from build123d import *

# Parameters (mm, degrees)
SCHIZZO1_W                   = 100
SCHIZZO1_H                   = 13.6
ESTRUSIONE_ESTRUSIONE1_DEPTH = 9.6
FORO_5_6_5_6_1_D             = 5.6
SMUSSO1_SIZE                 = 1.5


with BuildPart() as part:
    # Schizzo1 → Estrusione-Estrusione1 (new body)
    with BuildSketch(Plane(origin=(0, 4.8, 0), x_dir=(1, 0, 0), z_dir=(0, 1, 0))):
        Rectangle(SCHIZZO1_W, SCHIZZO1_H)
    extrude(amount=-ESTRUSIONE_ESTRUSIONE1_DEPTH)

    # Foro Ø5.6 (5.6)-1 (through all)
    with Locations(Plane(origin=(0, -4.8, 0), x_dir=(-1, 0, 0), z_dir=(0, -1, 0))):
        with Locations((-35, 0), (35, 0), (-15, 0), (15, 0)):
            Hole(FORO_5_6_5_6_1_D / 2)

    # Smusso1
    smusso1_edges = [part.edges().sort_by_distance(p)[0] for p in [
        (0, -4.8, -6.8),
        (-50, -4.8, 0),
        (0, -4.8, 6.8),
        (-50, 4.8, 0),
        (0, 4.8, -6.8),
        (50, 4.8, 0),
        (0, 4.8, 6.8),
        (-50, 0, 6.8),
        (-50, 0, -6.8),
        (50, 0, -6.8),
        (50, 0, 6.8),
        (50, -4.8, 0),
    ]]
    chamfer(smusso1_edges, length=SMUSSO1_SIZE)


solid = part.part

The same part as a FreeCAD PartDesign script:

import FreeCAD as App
import Part
import Sketcher

V = App.Vector
Q = App.Units.Quantity


def edges_at(feature, points):
    """Names of the edges that pass closest to the given points."""
    edges = feature.Shape.Edges
    near = lambda p: min(range(len(edges)), key=lambda i: edges[i].distToShape(Part.Vertex(*p))[0])
    return sorted({f"Edge{near(p) + 1}" for p in points})


def add_polygon(sketch, points):
    """Adds a closed chain of lines whose ends are joined by coincident constraints."""
    first, n = sketch.GeometryCount, len(points)
    for a, b in zip(points, points[1:] + points[:1]):
        sketch.addGeometry(Part.LineSegment(App.Vector(*a, 0), App.Vector(*b, 0)), False)
    for i in range(n):
        sketch.addConstraint(Sketcher.Constraint("Coincident", first + i, 2, first + (i + 1) % n, 1))

doc = App.newDocument("Part")
params = doc.addObject("Spreadsheet::Sheet", "Params")
for row, (alias, value) in enumerate([
    ("sketch1_width", "100 mm"),
    ("sketch1_height", "13.6 mm"),
    ("pad1_length", "9.6 mm"),
    ("sketch2_diameter", "5.6 mm"),
    ("hole_diameter", "5.6 mm"),
    ("chamfer_size", "1.5 mm"),
], start=1):
    params.set(f"A{row}", alias)
    params.set(f"B{row}", "=" + value)
    params.setAlias(f"B{row}", alias)

body = doc.addObject("PartDesign::Body", "Body")

sketch1 = body.newObject("Sketcher::SketchObject", "Sketch")
sketch1.AttachmentSupport = (doc.getObject("XZ_Plane"), [""])
sketch1.MapMode = "FlatFace"
sketch1.AttachmentOffset = App.Placement(V(0, 0, -4.8), App.Rotation())
add_polygon(sketch1, [(-50, -6.8), (-50, 6.8), (50, 6.8), (50, -6.8)])
sketch1.addConstraint(Sketcher.Constraint("Vertical", 0))
sketch1.addConstraint(Sketcher.Constraint("Horizontal", 1))
sketch1.addConstraint(Sketcher.Constraint("Vertical", 2))
sketch1.addConstraint(Sketcher.Constraint("Horizontal", 3))
sketch1.addConstraint(Sketcher.Constraint("Symmetric", 0, 2, 2, 2, -1, 1))
sketch1.addConstraint(Sketcher.Constraint("DistanceX", 1, 1, 1, 2, Q("100 mm")))
sketch1.addConstraint(Sketcher.Constraint("DistanceY", 0, 1, 0, 2, Q("13.6 mm")))
sketch1.setExpression("Constraints[9]", "Params.sketch1_width")
sketch1.setExpression("Constraints[10]", "Params.sketch1_height")
pad1 = body.newObject("PartDesign::Pad", "Pad")
pad1.Profile = sketch1
pad1.setExpression("Length", "Params.pad1_length")

sketch2 = body.newObject("Sketcher::SketchObject", "Sketch001")
sketch2.AttachmentSupport = (doc.getObject("XZ_Plane"), [""])
sketch2.MapMode = "FlatFace"
sketch2.AttachmentOffset = App.Placement(V(0, 0, 4.8), App.Rotation())
sketch2.addGeometry(Part.Circle(V(35, 0, 0), V(0, 0, 1), 2.8), False)
sketch2.addGeometry(Part.Circle(V(-35, 0, 0), V(0, 0, 1), 2.8), False)
sketch2.addGeometry(Part.Circle(V(15, 0, 0), V(0, 0, 1), 2.8), False)
sketch2.addGeometry(Part.Circle(V(-15, 0, 0), V(0, 0, 1), 2.8), False)
sketch2.addConstraint(Sketcher.Constraint("Equal", 0, 1))
sketch2.addConstraint(Sketcher.Constraint("Equal", 1, 2))
sketch2.addConstraint(Sketcher.Constraint("Equal", 2, 3))
sketch2.addConstraint(Sketcher.Constraint("Symmetric", 0, 3, 1, 3, -1, 1))
sketch2.addConstraint(Sketcher.Constraint("Symmetric", 2, 3, 3, 3, -1, 1))
sketch2.addConstraint(Sketcher.Constraint("PointOnObject", 0, 3, -1))
sketch2.addConstraint(Sketcher.Constraint("PointOnObject", 2, 3, -1))
sketch2.addConstraint(Sketcher.Constraint("Diameter", 0, Q("5.6 mm")))
sketch2.addConstraint(Sketcher.Constraint("DistanceX", -1, 1, 0, 3, Q("35 mm")))
sketch2.addConstraint(Sketcher.Constraint("DistanceX", -1, 1, 2, 3, Q("15 mm")))
sketch2.setExpression("Constraints[7]", "Params.sketch2_diameter")
doc.recompute()
hole = body.newObject("PartDesign::Hole", "Hole")
hole.Profile = sketch2
hole.ThreadType = "None"
hole.setExpression("Diameter", "Params.hole_diameter")
hole.DepthType = "ThroughAll"
doc.recompute()

chamfer = body.newObject("PartDesign::Chamfer", "Chamfer")
chamfer.Base = (hole, edges_at(hole, [
    (0, -4.8, -6.8),
    (-50, -4.8, 0),
    (0, -4.8, 6.8),
    (-50, 4.8, 0),
    (0, 4.8, -6.8),
    (50, 4.8, 0),
    (0, 4.8, 6.8),
    (-50, 0, 6.8),
    (-50, 0, -6.8),
    (50, 0, -6.8),
    (50, 0, 6.8),
    (50, -4.8, 0),
]))
chamfer.setExpression("Size", "Params.chamfer_size")

doc.recompute()
